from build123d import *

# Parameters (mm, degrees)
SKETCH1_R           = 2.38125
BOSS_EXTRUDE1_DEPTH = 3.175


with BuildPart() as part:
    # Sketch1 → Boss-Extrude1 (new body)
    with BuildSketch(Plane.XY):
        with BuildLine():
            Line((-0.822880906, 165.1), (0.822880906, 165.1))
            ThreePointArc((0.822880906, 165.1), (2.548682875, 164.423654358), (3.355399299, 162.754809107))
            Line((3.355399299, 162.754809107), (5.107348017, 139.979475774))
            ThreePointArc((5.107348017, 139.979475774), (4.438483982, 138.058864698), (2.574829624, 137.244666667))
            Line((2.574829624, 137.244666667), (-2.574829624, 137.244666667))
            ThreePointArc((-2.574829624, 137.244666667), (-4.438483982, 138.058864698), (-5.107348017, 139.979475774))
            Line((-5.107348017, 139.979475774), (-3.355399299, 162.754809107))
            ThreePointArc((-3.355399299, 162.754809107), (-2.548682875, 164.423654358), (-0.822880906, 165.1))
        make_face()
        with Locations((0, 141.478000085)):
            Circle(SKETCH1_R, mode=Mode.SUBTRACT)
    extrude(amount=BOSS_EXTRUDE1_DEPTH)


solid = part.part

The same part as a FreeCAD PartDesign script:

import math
import FreeCAD as App
import Part
import Sketcher
Q = App.Units.Quantity

doc = App.newDocument("Part")
body = doc.addObject("PartDesign::Body", "Body")

# Sketch on XY plane
sketch1 = body.newObject("Sketcher::SketchObject", "Sketch")
sketch1.AttachmentSupport = (doc.getObject("XY_Plane"), [""])
sketch1.MapMode = "FlatFace"
sketch1.addGeometry([
    Part.LineSegment(App.Vector(0.8, 165.1, 0), App.Vector(-0.8, 165.1, 0)),  # 0
    Part.ArcOfCircle(Part.Circle(App.Vector(-0.8, 162.6, 0), App.Vector(0, 0, 1), 2.5), math.radians(90), math.radians(176)),  # 1
    Part.LineSegment(App.Vector(-3.4, 162.8, 0), App.Vector(-5.1, 140, 0)),  # 2
    Part.ArcOfCircle(Part.Circle(App.Vector(-2.6, 139.8, 0), App.Vector(0, 0, 1), 2.5), math.radians(176), math.radians(270)),  # 3
    Part.LineSegment(App.Vector(-2.6, 137.2, 0), App.Vector(2.6, 137.2, 0)),  # 4
    Part.ArcOfCircle(Part.Circle(App.Vector(2.6, 139.8, 0), App.Vector(0, 0, 1), 2.5), math.radians(-90), math.radians(4)),  # 5
    Part.LineSegment(App.Vector(5.1, 140, 0), App.Vector(3.4, 162.8, 0)),  # 6
    Part.ArcOfCircle(Part.Circle(App.Vector(0.8, 162.6, 0), App.Vector(0, 0, 1), 2.5), math.radians(4), math.radians(90)),  # 7
    Part.Circle(App.Vector(0, 141.5, 0), App.Vector(0, 0, 1), 2.4),  # 8
], False)
sketch1.addConstraint([
    Sketcher.Constraint("Tangent", 0, 2, 1, 1),
    Sketcher.Constraint("Tangent", 1, 2, 2, 1),
    Sketcher.Constraint("Tangent", 2, 2, 3, 1),
    Sketcher.Constraint("Tangent", 3, 2, 4, 1),
    Sketcher.Constraint("Tangent", 4, 2, 5, 1),
    Sketcher.Constraint("Tangent", 5, 2, 6, 1),
    Sketcher.Constraint("Tangent", 6, 2, 7, 1),
    Sketcher.Constraint("Tangent", 7, 2, 0, 1),
    Sketcher.Constraint("Horizontal", 0),
    Sketcher.Constraint("Horizontal", 4),
    Sketcher.Constraint("Equal", 1, 3),
    Sketcher.Constraint("Equal", 3, 5),
    Sketcher.Constraint("Equal", 5, 7),
    Sketcher.Constraint("Symmetric", 2, 2, 5, 2, -2),
    Sketcher.Constraint("PointOnObject", 8, 3, -2),
    Sketcher.Constraint("Radius", 1, Q("0.1 in")),
    Sketcher.Constraint("Diameter", 8, Q("0.1875 in")),
    Sketcher.Constraint("DistanceY", -1, 1, 1, 3, Q("6.4 in")),
    Sketcher.Constraint("DistanceY", -1, 1, 8, 3, Q("5.57 in")),
    Sketcher.Constraint("DistanceX", 0, 2, 0, 1, 1.645762),
    Sketcher.Constraint("DistanceX", 4, 1, 4, 2, 5.149659),
    Sketcher.Constraint("DistanceY", -1, 1, 6, 2, 162.754809),
])
pad1 = body.newObject("PartDesign::Pad", "Pad")
pad1.Profile = sketch1
pad1.Length = Q("0.125 in")

doc.recompute()
